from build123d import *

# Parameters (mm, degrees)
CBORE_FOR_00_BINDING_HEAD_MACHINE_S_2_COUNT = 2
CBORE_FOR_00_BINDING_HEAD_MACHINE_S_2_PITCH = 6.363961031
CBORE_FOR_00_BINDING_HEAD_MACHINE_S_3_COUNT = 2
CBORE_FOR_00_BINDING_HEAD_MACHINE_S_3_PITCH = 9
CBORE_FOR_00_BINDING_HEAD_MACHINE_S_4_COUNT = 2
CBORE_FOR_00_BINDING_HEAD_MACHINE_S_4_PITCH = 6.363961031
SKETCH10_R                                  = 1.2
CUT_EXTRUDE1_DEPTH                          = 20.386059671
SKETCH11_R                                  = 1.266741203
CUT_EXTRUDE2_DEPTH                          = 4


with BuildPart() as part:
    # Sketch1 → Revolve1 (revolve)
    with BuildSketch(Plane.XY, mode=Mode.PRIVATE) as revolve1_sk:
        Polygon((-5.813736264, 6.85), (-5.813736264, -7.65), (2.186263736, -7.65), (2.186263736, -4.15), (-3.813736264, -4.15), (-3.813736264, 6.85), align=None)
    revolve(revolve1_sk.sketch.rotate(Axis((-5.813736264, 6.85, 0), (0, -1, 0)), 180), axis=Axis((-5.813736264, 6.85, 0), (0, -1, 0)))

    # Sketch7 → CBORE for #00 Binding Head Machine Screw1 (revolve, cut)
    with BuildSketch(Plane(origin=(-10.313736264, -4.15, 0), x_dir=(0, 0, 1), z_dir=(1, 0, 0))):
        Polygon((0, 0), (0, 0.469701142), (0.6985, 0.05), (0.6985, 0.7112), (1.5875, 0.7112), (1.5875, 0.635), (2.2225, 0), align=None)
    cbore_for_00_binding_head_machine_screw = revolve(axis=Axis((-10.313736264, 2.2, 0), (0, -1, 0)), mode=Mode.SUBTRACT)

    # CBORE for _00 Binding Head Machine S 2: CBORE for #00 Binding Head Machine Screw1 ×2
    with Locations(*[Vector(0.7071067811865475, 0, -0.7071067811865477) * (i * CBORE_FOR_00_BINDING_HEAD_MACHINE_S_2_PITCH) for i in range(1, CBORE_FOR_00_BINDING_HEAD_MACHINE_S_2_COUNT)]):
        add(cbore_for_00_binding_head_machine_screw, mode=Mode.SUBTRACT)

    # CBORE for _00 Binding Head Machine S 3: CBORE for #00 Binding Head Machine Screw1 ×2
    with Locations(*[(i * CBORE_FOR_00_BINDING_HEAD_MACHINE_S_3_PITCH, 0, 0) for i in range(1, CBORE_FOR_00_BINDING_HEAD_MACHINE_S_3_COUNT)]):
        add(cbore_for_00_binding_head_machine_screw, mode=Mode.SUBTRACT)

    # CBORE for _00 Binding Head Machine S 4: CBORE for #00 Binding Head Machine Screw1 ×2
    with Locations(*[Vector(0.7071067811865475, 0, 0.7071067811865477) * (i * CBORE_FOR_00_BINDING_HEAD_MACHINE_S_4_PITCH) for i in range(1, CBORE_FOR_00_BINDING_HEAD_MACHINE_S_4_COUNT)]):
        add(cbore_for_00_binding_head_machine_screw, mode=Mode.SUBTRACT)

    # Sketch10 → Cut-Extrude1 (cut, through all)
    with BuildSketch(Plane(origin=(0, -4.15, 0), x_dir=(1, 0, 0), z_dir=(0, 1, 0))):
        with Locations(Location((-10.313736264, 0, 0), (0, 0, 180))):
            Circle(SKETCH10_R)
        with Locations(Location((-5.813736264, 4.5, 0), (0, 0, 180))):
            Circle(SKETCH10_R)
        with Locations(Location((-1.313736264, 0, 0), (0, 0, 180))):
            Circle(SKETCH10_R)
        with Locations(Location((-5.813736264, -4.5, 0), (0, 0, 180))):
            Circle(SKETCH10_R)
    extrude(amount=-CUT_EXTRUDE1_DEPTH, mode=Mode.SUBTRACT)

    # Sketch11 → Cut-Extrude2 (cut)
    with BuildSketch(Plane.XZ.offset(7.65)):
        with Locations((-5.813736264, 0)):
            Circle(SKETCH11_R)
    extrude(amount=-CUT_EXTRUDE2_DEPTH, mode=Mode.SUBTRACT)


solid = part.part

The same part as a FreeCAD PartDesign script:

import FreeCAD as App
import Part
import Sketcher

V = App.Vector
Q = App.Units.Quantity


def add_polygon(sketch, points):
    """Adds a closed chain of lines whose ends are joined by coincident constraints."""
    first, n = sketch.GeometryCount, len(points)
    for a, b in zip(points, points[1:] + points[:1]):
        sketch.addGeometry(Part.LineSegment(App.Vector(*a, 0), App.Vector(*b, 0)), False)
    for i in range(n):
        sketch.addConstraint(Sketcher.Constraint("Coincident", first + i, 2, first + (i + 1) % n, 1))

doc = App.newDocument("Part")
body = doc.addObject("PartDesign::Body", "Body")

sketch1 = body.newObject("Sketcher::SketchObject", "Sketch")
sketch1.AttachmentSupport = (doc.getObject("XY_Plane"), [""])
sketch1.MapMode = "FlatFace"
add_polygon(sketch1, [(-5.813736, 6.85), (-5.813736, -7.65), (2.186264, -7.65), (2.186264, -4.15), (-3.813736, -4.15), (-3.813736, 6.85)])
sketch1.addGeometry(Part.LineSegment(V(-5.813736, 6.85, 0), V(-5.813736, -7.65, 0)), True)
sketch1.addConstraint(Sketcher.Constraint("Vertical", 0))
sketch1.addConstraint(Sketcher.Constraint("Horizontal", 1))
sketch1.addConstraint(Sketcher.Constraint("Vertical", 2))
sketch1.addConstraint(Sketcher.Constraint("Horizontal", 3))
sketch1.addConstraint(Sketcher.Constraint("Vertical", 4))
sketch1.addConstraint(Sketcher.Constraint("Horizontal", 5))
sketch1.addConstraint(Sketcher.Constraint("Vertical", 6))
sketch1.addConstraint(Sketcher.Constraint("Coincident", 6, 1, 5, 2))
sketch1.addConstraint(Sketcher.Constraint("Horizontal", 1, 2, 6, 2))
sketch1.addConstraint(Sketcher.Constraint("DistanceX", 1, 1, 1, 2, Q("8 mm")))
sketch1.addConstraint(Sketcher.Constraint("DistanceX", 3, 2, 3, 1, Q("6 mm")))
sketch1.addConstraint(Sketcher.Constraint("DistanceY", 4, 1, 4, 2, Q("11 mm")))
sketch1.addConstraint(Sketcher.Constraint("DistanceY", 0, 2, 0, 1, Q("14.5 mm")))
sketch1.addConstraint(Sketcher.Constraint("DistanceY", 0, 2, -1, 1, Q("7.65 mm")))
sketch1.addConstraint(Sketcher.Constraint("DistanceX", 0, 2, -1, 1, Q("5.813736 mm")))
revolution = body.newObject("PartDesign::Revolution", "Revolution")
revolution.Profile = sketch1
revolution.ReferenceAxis = (sketch1, ["Axis0"])
revolution.Angle = 360

sketch2 = body.newObject("Sketcher::SketchObject", "Sketch001")
sketch2.AttachmentSupport = (doc.getObject("YZ_Plane"), [""])
sketch2.MapMode = "FlatFace"
sketch2.AttachmentOffset = App.Placement(V(0, 0, -10.313736), App.Rotation())
add_polygon(sketch2, [(-4.619701, 0), (-4.15, 0), (-4.15, 2.2225), (-4.785, 1.5875), (-4.8612, 1.5875), (-4.8612, 0.6985), (-4.2, 0.6985)])
sketch2.addConstraint(Sketcher.Constraint("Horizontal", 0))
sketch2.addConstraint(Sketcher.Constraint("Vertical", 1))
sketch2.addConstraint(Sketcher.Constraint("Horizontal", 3))
sketch2.addConstraint(Sketcher.Constraint("Vertical", 4))
sketch2.addConstraint(Sketcher.Constraint("Horizontal", 5))
sketch2.addConstraint(Sketcher.Constraint("PointOnObject", 0, 2, -1))
sketch2.addConstraint(Sketcher.Constraint("Angle", 2, Q("-135 deg")))
sketch2.addConstraint(Sketcher.Constraint("Angle", 6, Q("-121 deg")))
sketch2.addConstraint(Sketcher.Constraint("DistanceX", 5, 2, -1, 1, Q("4.2 mm")))
sketch2.addConstraint(Sketcher.Constraint("DistanceY", 4, 2, 4, 1, Q("0.889 mm")))
sketch2.addConstraint(Sketcher.Constraint("DistanceX", 0, 2, -1, 1, Q("4.15 mm")))
sketch2.addConstraint(Sketcher.Constraint("DistanceX", 0, 1, 0, 2, Q("0.469701 mm")))
sketch2.addConstraint(Sketcher.Constraint("DistanceX", 3, 2, 3, 1, Q("0.0762 mm")))
sketch2.addConstraint(Sketcher.Constraint("DistanceX", 5, 1, 5, 2, Q("0.6612 mm")))
groove = body.newObject("PartDesign::Groove", "Groove")
groove.Profile = sketch2
groove.ReferenceAxis = (sketch2, ["H_Axis"])
groove.Angle = 360
doc.recompute()

datumline = body.newObject("PartDesign::Line", "DatumLine")
datumline.Placement = App.Placement(V(0, 0, 0), App.Rotation(V(0, 0, 1), V(0.707106781, 0, -0.707106781)))
linearpattern = body.newObject("PartDesign::LinearPattern", "LinearPattern")
linearpattern.Originals = [groove]
linearpattern.Direction = (datumline, [""])
linearpattern.Mode = "offset"
linearpattern.Offset = 6.363961
linearpattern.Occurrences = 2
body.Tip = linearpattern
doc.recompute()

linearpattern2 = body.newObject("PartDesign::LinearPattern", "LinearPattern001")
linearpattern2.Originals = [groove]
linearpattern2.Direction = (doc.getObject("X_Axis"), [""])
linearpattern2.Mode = "offset"
linearpattern2.Offset = 9
linearpattern2.Occurrences = 2
body.Tip = linearpattern2
doc.recompute()

datumline2 = body.newObject("PartDesign::Line", "DatumLine001")
datumline2.Placement = App.Placement(V(0, 0, 0), App.Rotation(V(0, 0, 1), V(0.707106781, 0, 0.707106781)))
linearpattern3 = body.newObject("PartDesign::LinearPattern", "LinearPattern002")
linearpattern3.Originals = [groove]
linearpattern3.Direction = (datumline2, [""])
linearpattern3.Mode = "offset"
linearpattern3.Offset = 6.363961
linearpattern3.Occurrences = 2
body.Tip = linearpattern3

sketch3 = body.newObject("Sketcher::SketchObject", "Sketch002")
sketch3.AttachmentSupport = (doc.getObject("XZ_Plane"), [""])
sketch3.MapMode = "FlatFace"
sketch3.AttachmentOffset = App.Placement(V(0, 0, 4.15), App.Rotation())
sketch3.addGeometry(Part.Circle(V(-10.313736, 0, 0), V(0, 0, 1), 1.2), False)
sketch3.addGeometry(Part.Circle(V(-5.813736, -4.5, 0), V(0, 0, 1), 1.2), False)
sketch3.addGeometry(Part.Circle(V(-1.313736, 0, 0), V(0, 0, 1), 1.2), False)
sketch3.addGeometry(Part.Circle(V(-5.813736, 4.5, 0), V(0, 0, 1), 1.2), False)
sketch3.addConstraint(Sketcher.Constraint("Equal", 0, 1))
sketch3.addConstraint(Sketcher.Constraint("Equal", 1, 2))
sketch3.addConstraint(Sketcher.Constraint("Equal", 2, 3))
sketch3.addConstraint(Sketcher.Constraint("Symmetric", 1, 3, 3, 3, -1))
sketch3.addConstraint(Sketcher.Constraint("PointOnObject", 0, 3, -1))
sketch3.addConstraint(Sketcher.Constraint("PointOnObject", 2, 3, -1))
sketch3.addConstraint(Sketcher.Constraint("Diameter", 0, Q("2.4 mm")))
sketch3.addConstraint(Sketcher.Constraint("DistanceX", 0, 3, 2, 3, Q("9 mm")))
sketch3.addConstraint(Sketcher.Constraint("DistanceY", 1, 3, 3, 3, Q("9 mm")))
sketch3.addConstraint(Sketcher.Constraint("DistanceX", 0, 3, 1, 3, Q("4.5 mm")))
sketch3.addConstraint(Sketcher.Constraint("DistanceX", 0, 3, -1, 1, Q("10.313736 mm")))
pocket1 = body.newObject("PartDesign::Pocket", "Pocket")
pocket1.Profile = sketch3
pocket1.Type = "ThroughAll"
pocket1.Reversed = True

sketch4 = body.newObject("Sketcher::SketchObject", "Sketch003")
sketch4.AttachmentSupport = (doc.getObject("XZ_Plane"), [""])
sketch4.MapMode = "FlatFace"
sketch4.AttachmentOffset = App.Placement(V(0, 0, 7.65), App.Rotation())
sketch4.addGeometry(Part.Circle(V(-5.813736, 0, 0), V(0, 0, 1), 1.266741), False)
sketch4.addConstraint(Sketcher.Constraint("PointOnObject", 0, 3, -1))
sketch4.addConstraint(Sketcher.Constraint("Diameter", 0, Q("2.533482 mm")))
sketch4.addConstraint(Sketcher.Constraint("DistanceX", 0, 3, -1, 1, Q("5.813736 mm")))
pocket2 = body.newObject("PartDesign::Pocket", "Pocket001")
pocket2.Profile = sketch4
pocket2.Length = 4

doc.recompute()
